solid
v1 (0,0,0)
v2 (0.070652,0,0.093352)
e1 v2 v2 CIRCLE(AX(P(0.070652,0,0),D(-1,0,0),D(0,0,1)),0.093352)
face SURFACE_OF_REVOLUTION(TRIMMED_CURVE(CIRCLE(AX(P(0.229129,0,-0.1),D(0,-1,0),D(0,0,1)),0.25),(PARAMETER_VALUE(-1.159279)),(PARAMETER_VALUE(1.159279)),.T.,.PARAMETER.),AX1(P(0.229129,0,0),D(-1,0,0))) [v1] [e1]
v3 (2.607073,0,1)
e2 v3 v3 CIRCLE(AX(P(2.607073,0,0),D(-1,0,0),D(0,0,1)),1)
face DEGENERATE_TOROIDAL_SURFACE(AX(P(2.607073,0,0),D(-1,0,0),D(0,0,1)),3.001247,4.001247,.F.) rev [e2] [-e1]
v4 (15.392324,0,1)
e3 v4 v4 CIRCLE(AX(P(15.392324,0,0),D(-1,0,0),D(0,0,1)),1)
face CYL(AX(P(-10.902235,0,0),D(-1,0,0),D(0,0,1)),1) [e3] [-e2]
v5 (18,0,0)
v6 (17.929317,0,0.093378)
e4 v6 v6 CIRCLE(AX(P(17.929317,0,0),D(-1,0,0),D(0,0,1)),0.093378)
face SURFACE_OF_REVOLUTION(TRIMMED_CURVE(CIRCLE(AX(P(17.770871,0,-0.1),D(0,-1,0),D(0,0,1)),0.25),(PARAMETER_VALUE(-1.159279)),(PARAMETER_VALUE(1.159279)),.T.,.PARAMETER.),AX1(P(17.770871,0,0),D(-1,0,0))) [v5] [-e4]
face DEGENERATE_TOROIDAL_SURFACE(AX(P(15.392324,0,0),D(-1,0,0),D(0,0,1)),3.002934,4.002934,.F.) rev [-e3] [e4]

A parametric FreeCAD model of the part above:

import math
import FreeCAD as App
import Part
import Sketcher

V = App.Vector
Q = App.Units.Quantity

doc = App.newDocument("Part")
body = doc.addObject("PartDesign::Body", "Body")

sketch1 = doc.addObject("Sketcher::SketchObject", "Sketch")
body.addObject(sketch1)
sketch1.AttachmentSupport = (doc.XY_Plane, [""])
sketch1.MapMode = "FlatFace"
sketch1.addGeometry([
    Part.LineSegment(V(15.39, 1, 0), V(2.61, 1, 0)),
    Part.ArcOfCircle(Part.Circle(V(2.61, -3, 0), V(0, 0, 1), 4), math.radians(90), math.radians(129)),
    Part.ArcOfCircle(Part.Circle(V(0.23, -0.1, 0), V(0, 0, 1), 0.25), math.radians(129), math.radians(156)),
    Part.LineSegment(V(0, 0, 0), V(18, 0, 0)),
    Part.ArcOfCircle(Part.Circle(V(17.77, -0.1, 0), V(0, 0, 1), 0.25), math.radians(24), math.radians(51)),
    Part.ArcOfCircle(Part.Circle(V(15.39, -3, 0), V(0, 0, 1), 4), math.radians(51), math.radians(90)),
], False)
sketch1.addConstraint([
    Sketcher.Constraint("Tangent", 0, 2, 1, 1),
    Sketcher.Constraint("Tangent", 1, 2, 2, 1),
    Sketcher.Constraint("Coincident", 2, 2, 3, 1),
    Sketcher.Constraint("Coincident", 3, 2, 4, 1),
    Sketcher.Constraint("Tangent", 4, 2, 5, 1),
    Sketcher.Constraint("Tangent", 5, 2, 0, 1),
    Sketcher.Constraint("Horizontal", 0),
    Sketcher.Constraint("Horizontal", 3),
    Sketcher.Constraint("Coincident", 2, 2, -1, 1),
    Sketcher.Constraint("Equal", 2, 4),
    Sketcher.Constraint("Horizontal", 2, 3, 4, 3),
    Sketcher.Constraint("DistanceX", 3, 1, 3, 2, Q("18 mm")),
    Sketcher.Constraint("Radius", 2, Q("0.25 mm")),
    Sketcher.Constraint("DistanceY", -1, 1, 0, 2, Q("1 mm")),
    Sketcher.Constraint("DistanceY", 2, 3, -1, 1, Q("0.1 mm")),
    Sketcher.Constraint("Radius", 1, Q("4.001247 mm")),
    Sketcher.Constraint("Radius", 5, Q("4.002934 mm")),
])
revolution = doc.addObject("PartDesign::Revolution", "Revolution")
body.addObject(revolution)
revolution.Profile = sketch1
revolution.ReferenceAxis = (sketch1, ["H_Axis"])
revolution.Angle = 360

doc.recompute()
